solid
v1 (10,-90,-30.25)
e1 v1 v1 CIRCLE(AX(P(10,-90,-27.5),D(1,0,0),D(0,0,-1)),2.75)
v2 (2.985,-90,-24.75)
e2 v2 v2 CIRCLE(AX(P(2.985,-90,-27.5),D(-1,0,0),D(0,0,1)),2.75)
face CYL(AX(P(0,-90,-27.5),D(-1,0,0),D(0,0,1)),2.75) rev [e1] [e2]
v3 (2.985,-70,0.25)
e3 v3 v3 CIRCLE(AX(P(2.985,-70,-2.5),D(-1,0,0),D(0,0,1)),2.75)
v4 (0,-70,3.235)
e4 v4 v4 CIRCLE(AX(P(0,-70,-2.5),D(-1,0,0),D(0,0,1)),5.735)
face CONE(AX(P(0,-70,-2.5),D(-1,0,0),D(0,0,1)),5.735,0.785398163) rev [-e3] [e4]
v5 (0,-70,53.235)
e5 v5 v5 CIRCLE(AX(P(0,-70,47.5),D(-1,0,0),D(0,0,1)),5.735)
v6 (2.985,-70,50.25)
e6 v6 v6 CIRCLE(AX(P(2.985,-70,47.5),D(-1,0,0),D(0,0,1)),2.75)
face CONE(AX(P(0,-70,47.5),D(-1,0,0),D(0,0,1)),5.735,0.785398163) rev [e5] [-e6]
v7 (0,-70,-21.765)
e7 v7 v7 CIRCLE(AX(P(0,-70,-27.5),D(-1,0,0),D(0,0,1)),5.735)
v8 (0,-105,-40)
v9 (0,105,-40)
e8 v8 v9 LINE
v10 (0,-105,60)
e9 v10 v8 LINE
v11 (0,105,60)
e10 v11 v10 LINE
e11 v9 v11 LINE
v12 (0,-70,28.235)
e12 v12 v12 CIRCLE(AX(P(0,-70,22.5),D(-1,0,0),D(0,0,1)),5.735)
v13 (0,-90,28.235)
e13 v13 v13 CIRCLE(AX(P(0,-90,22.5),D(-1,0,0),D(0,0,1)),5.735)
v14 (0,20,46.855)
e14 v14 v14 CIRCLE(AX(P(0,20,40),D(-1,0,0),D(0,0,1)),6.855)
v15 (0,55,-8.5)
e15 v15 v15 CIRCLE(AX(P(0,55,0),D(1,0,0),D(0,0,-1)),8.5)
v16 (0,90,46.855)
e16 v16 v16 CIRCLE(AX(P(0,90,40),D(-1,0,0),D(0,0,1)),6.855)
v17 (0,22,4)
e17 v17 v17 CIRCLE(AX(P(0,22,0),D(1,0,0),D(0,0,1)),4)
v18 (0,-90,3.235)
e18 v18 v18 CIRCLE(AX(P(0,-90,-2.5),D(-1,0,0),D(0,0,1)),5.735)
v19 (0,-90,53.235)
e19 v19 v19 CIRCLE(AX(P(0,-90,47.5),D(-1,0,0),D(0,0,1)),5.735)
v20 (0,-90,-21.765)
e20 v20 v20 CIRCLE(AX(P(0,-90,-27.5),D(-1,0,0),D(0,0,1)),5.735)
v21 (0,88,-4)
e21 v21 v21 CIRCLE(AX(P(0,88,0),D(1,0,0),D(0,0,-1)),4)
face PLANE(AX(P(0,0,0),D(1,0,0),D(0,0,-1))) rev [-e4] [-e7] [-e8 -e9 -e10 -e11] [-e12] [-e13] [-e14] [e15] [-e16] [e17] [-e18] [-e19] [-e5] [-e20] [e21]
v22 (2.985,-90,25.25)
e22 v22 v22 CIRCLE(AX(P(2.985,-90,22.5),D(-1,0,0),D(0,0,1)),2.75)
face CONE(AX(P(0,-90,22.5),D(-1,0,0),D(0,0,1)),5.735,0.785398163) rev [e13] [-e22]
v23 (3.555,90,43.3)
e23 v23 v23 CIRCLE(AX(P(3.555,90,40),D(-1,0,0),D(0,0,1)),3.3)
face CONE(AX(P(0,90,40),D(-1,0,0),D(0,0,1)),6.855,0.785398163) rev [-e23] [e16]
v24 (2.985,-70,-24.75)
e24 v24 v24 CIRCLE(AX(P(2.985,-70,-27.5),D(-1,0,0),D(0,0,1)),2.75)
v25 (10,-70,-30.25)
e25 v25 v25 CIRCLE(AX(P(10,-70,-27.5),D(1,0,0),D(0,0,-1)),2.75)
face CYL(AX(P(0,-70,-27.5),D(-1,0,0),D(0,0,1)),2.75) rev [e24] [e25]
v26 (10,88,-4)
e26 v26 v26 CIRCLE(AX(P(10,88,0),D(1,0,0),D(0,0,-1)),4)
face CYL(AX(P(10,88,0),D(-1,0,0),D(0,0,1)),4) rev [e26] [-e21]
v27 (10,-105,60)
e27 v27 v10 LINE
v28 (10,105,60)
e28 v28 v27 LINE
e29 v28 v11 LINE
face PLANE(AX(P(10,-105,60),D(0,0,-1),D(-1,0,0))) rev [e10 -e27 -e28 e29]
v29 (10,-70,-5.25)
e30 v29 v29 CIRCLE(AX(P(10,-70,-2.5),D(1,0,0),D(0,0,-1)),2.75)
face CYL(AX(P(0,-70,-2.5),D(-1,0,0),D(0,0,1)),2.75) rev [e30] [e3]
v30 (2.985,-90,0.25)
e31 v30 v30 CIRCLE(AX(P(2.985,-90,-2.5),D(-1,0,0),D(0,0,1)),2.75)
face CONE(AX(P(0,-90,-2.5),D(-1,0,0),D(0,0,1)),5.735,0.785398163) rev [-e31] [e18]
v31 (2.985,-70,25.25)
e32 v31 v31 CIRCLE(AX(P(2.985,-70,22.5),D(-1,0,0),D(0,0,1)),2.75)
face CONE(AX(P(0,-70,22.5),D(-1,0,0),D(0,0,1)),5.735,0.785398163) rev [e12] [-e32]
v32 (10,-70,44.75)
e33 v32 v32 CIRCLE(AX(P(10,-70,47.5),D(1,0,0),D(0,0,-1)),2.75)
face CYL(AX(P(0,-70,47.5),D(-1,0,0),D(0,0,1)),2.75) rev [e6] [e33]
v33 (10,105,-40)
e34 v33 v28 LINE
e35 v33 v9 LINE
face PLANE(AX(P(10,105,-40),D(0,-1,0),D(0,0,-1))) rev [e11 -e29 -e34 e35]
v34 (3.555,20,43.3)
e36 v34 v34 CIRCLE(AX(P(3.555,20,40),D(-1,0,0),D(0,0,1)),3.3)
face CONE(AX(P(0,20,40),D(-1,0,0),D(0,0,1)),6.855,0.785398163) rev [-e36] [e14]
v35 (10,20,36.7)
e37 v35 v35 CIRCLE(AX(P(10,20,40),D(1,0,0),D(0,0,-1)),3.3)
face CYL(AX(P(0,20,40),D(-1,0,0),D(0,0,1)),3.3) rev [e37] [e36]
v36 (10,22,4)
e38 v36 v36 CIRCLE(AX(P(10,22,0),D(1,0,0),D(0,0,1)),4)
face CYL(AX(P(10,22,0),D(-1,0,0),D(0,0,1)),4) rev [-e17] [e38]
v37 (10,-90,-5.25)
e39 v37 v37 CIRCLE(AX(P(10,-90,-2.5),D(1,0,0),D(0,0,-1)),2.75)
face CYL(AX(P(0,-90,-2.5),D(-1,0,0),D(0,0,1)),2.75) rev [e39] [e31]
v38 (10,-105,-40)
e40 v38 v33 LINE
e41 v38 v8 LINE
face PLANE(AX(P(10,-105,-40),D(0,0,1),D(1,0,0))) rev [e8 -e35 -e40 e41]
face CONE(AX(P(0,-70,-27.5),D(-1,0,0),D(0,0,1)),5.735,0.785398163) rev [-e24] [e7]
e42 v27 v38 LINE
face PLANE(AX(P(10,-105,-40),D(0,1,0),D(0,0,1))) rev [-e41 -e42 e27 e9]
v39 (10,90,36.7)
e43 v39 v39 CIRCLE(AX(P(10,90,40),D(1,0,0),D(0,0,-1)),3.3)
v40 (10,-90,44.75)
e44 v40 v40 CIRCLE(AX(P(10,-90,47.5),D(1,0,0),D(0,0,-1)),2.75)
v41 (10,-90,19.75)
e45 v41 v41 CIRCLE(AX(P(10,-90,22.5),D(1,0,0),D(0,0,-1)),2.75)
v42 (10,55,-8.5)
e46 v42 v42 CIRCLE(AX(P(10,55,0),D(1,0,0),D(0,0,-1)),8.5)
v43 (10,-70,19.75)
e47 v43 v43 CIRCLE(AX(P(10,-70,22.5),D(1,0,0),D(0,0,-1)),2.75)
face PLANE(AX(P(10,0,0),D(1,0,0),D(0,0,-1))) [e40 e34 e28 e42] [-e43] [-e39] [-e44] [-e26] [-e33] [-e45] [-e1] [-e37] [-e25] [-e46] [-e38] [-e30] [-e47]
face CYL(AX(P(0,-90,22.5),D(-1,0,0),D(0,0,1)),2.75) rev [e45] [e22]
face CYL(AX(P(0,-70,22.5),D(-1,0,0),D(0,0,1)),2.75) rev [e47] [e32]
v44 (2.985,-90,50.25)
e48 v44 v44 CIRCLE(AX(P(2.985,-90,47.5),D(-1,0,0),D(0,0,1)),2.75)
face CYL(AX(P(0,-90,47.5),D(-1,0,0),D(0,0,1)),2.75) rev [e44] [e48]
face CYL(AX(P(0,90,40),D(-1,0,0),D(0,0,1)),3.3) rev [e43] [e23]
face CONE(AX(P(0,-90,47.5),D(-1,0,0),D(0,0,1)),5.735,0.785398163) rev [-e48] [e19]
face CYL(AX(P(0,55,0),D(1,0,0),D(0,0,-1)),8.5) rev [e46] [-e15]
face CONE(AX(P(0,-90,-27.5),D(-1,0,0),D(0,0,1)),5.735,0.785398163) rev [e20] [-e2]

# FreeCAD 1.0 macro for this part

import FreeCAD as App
import Part
import Sketcher

V = App.Vector
Q = App.Units.Quantity


def add_polygon(sketch, points):
    """Adds a closed chain of lines whose ends are joined by coincident constraints."""
    first, n = sketch.GeometryCount, len(points)
    for a, b in zip(points, points[1:] + points[:1]):
        sketch.addGeometry(Part.LineSegment(App.Vector(*a, 0), App.Vector(*b, 0)), False)
    for i in range(n):
        sketch.addConstraint(Sketcher.Constraint("Coincident", first + i, 2, first + (i + 1) % n, 1))

doc = App.newDocument("Part")
body = doc.addObject("PartDesign::Body", "Body")

sketch1 = body.newObject("Sketcher::SketchObject", "Sketch")
sketch1.AttachmentSupport = (doc.getObject("YZ_Plane"), [""])
sketch1.MapMode = "FlatFace"
add_polygon(sketch1, [(105, 60), (-105, 60), (-105, -40), (105, -40)])
sketch1.addGeometry(Part.Circle(V(22, 0, 0), V(0, 0, 1), 4), False)
sketch1.addGeometry(Part.Circle(V(88, 0, 0), V(0, 0, 1), 4), False)
sketch1.addConstraint(Sketcher.Constraint("Horizontal", 0))
sketch1.addConstraint(Sketcher.Constraint("Vertical", 1))
sketch1.addConstraint(Sketcher.Constraint("Horizontal", 2))
sketch1.addConstraint(Sketcher.Constraint("Vertical", 3))
sketch1.addConstraint(Sketcher.Constraint("Equal", 4, 5))
sketch1.addConstraint(Sketcher.Constraint("PointOnObject", 4, 3, -1))
sketch1.addConstraint(Sketcher.Constraint("PointOnObject", 5, 3, -1))
sketch1.addConstraint(Sketcher.Constraint("Diameter", 4, Q("8 mm")))
sketch1.addConstraint(Sketcher.Constraint("DistanceX", 0, 2, 0, 1, Q("210 mm")))
sketch1.addConstraint(Sketcher.Constraint("DistanceY", 1, 2, 1, 1, Q("100 mm")))
sketch1.addConstraint(Sketcher.Constraint("DistanceX", -1, 1, 4, 3, Q("22 mm")))
sketch1.addConstraint(Sketcher.Constraint("DistanceX", -1, 1, 5, 3, Q("88 mm")))
sketch1.addConstraint(Sketcher.Constraint("DistanceX", 0, 2, -1, 1, Q("105 mm")))
sketch1.addConstraint(Sketcher.Constraint("DistanceY", -1, 1, 0, 2, Q("60 mm")))
pad1 = body.newObject("PartDesign::Pad", "Pad")
pad1.Profile = sketch1
pad1.Length = 10

sketch2 = body.newObject("Sketcher::SketchObject", "Sketch001")
sketch2.AttachmentSupport = (doc.getObject("YZ_Plane"), [""])
sketch2.MapMode = "FlatFace"
sketch2.AttachmentOffset = App.Placement(V(0, 0, 10), App.Rotation())
sketch2.addGeometry(Part.Circle(V(-70, 22.5, 0), V(0, 0, 1), 2.5), False)
sketch2.addGeometry(Part.Circle(V(-70, 47.5, 0), V(0, 0, 1), 2.5), False)
sketch2.addGeometry(Part.Circle(V(-90, 47.5, 0), V(0, 0, 1), 2.5), False)
sketch2.addGeometry(Part.Circle(V(-90, 22.5, 0), V(0, 0, 1), 2.5), False)
sketch2.addGeometry(Part.Circle(V(-90, -2.5, 0), V(0, 0, 1), 2.5), False)
sketch2.addGeometry(Part.Circle(V(-90, -27.5, 0), V(0, 0, 1), 2.5), False)
sketch2.addGeometry(Part.Circle(V(-70, -27.5, 0), V(0, 0, 1), 2.5), False)
sketch2.addGeometry(Part.Circle(V(-70, -2.5, 0), V(0, 0, 1), 2.5), False)
sketch2.addConstraint(Sketcher.Constraint("Equal", 0, 1))
sketch2.addConstraint(Sketcher.Constraint("Equal", 1, 2))
sketch2.addConstraint(Sketcher.Constraint("Equal", 2, 3))
sketch2.addConstraint(Sketcher.Constraint("Equal", 3, 4))
sketch2.addConstraint(Sketcher.Constraint("Equal", 4, 5))
sketch2.addConstraint(Sketcher.Constraint("Equal", 5, 6))
sketch2.addConstraint(Sketcher.Constraint("Equal", 6, 7))
sketch2.addConstraint(Sketcher.Constraint("Horizontal", 1, 3, 2, 3))
sketch2.addConstraint(Sketcher.Constraint("Horizontal", 0, 3, 3, 3))
sketch2.addConstraint(Sketcher.Constraint("Horizontal", 5, 3, 6, 3))
sketch2.addConstraint(Sketcher.Constraint("Horizontal", 4, 3, 7, 3))
sketch2.addConstraint(Sketcher.Constraint("Vertical", 0, 3, 1, 3))
sketch2.addConstraint(Sketcher.Constraint("Vertical", 2, 3, 3, 3))
sketch2.addConstraint(Sketcher.Constraint("Vertical", 3, 3, 4, 3))
sketch2.addConstraint(Sketcher.Constraint("Vertical", 4, 3, 5, 3))
sketch2.addConstraint(Sketcher.Constraint("Vertical", 1, 3, 6, 3))
sketch2.addConstraint(Sketcher.Constraint("Vertical", 6, 3, 7, 3))
sketch2.addConstraint(Sketcher.Constraint("Diameter", 0, Q("5 mm")))
sketch2.addConstraint(Sketcher.Constraint("DistanceX", 0, 3, -1, 1, Q("70 mm")))
sketch2.addConstraint(Sketcher.Constraint("DistanceX", 2, 3, -1, 1, Q("90 mm")))
sketch2.addConstraint(Sketcher.Constraint("DistanceY", 0, 3, 1, 3, Q("25 mm")))
sketch2.addConstraint(Sketcher.Constraint("DistanceY", 4, 3, 3, 3, Q("25 mm")))
sketch2.addConstraint(Sketcher.Constraint("DistanceY", 5, 3, 4, 3, Q("25 mm")))
sketch2.addConstraint(Sketcher.Constraint("DistanceY", -1, 1, 0, 3, Q("22.5 mm")))
pocket1 = body.newObject("PartDesign::Pocket", "Pocket")
pocket1.Profile = sketch2
pocket1.Type = "ThroughAll"

sketch3 = body.newObject("Sketcher::SketchObject", "Sketch002")
sketch3.AttachmentSupport = (doc.getObject("YZ_Plane"), [""])
sketch3.MapMode = "FlatFace"
sketch3.AttachmentOffset = App.Placement(V(0, 0, 10), App.Rotation())
sketch3.addGeometry(Part.Circle(V(90, 40, 0), V(0, 0, 1), 2.5), False)
sketch3.addGeometry(Part.Circle(V(20, 40, 0), V(0, 0, 1), 2.5), False)
sketch3.addConstraint(Sketcher.Constraint("Equal", 0, 1))
sketch3.addConstraint(Sketcher.Constraint("Horizontal", 0, 3, 1, 3))
sketch3.addConstraint(Sketcher.Constraint("Diameter", 0, Q("5 mm")))
sketch3.addConstraint(Sketcher.Constraint("DistanceX", -1, 1, 0, 3, Q("90 mm")))
sketch3.addConstraint(Sketcher.Constraint("DistanceY", -1, 1, 0, 3, Q("40 mm")))
sketch3.addConstraint(Sketcher.Constraint("DistanceX", -1, 1, 1, 3, Q("20 mm")))
pocket2 = body.newObject("PartDesign::Pocket", "Pocket001")
pocket2.Profile = sketch3
pocket2.Type = "ThroughAll"

sketch4 = body.newObject("Sketcher::SketchObject", "Sketch003")
sketch4.AttachmentSupport = (doc.getObject("YZ_Plane"), [""])
sketch4.MapMode = "FlatFace"
sketch4.AttachmentOffset = App.Placement(V(0, 0, 10), App.Rotation())
sketch4.addGeometry(Part.Circle(V(55, 0, 0), V(0, 0, 1), 8), False)
sketch4.addConstraint(Sketcher.Constraint("PointOnObject", 0, 3, -1))
sketch4.addConstraint(Sketcher.Constraint("Diameter", 0, Q("17 mm")))
sketch4.addConstraint(Sketcher.Constraint("DistanceX", -1, 1, 0, 3, Q("55 mm")))
pocket3 = body.newObject("PartDesign::Pocket", "Pocket002")
pocket3.Profile = sketch4
pocket3.Type = "ThroughAll"

sketch5 = body.newObject("Sketcher::SketchObject", "Sketch004")
sketch5.AttachmentSupport = (doc.getObject("YZ_Plane"), [""])
sketch5.MapMode = "FlatFace"
sketch5.addGeometry(Part.Circle(V(90, 40, 0), V(0, 0, 1), 3.3), False)
sketch5.addGeometry(Part.Circle(V(20, 40, 0), V(0, 0, 1), 3.3), False)
sketch5.addConstraint(Sketcher.Constraint("Equal", 0, 1))
sketch5.addConstraint(Sketcher.Constraint("Horizontal", 0, 3, 1, 3))
sketch5.addConstraint(Sketcher.Constraint("Diameter", 0, Q("6.6 mm")))
sketch5.addConstraint(Sketcher.Constraint("DistanceX", -1, 1, 0, 3, Q("90 mm")))
sketch5.addConstraint(Sketcher.Constraint("DistanceY", -1, 1, 0, 3, Q("40 mm")))
sketch5.addConstraint(Sketcher.Constraint("DistanceX", -1, 1, 1, 3, Q("20 mm")))
doc.recompute()
hole = body.newObject("PartDesign::Hole", "Hole")
hole.Profile = sketch5
hole.ThreadType = "None"
hole.Diameter = 6.6
hole.DepthType = "Dimension"
hole.Depth = 15
hole.DrillPoint = "Angled"
hole.DrillPointAngle = 118
hole.HoleCutType = "Countersink"
hole.HoleCutDiameter = 13.71
hole.HoleCutCountersinkAngle = 90
hole.Reversed = True

sketch6 = body.newObject("Sketcher::SketchObject", "Sketch005")
sketch6.AttachmentSupport = (doc.getObject("YZ_Plane"), [""])
sketch6.MapMode = "FlatFace"
sketch6.addGeometry(Part.Circle(V(-70, -27.5, 0), V(0, 0, 1), 2.8), False)
sketch6.addGeometry(Part.Circle(V(-70, -2.5, 0), V(0, 0, 1), 2.8), False)
sketch6.addGeometry(Part.Circle(V(-70, 22.5, 0), V(0, 0, 1), 2.8), False)
sketch6.addGeometry(Part.Circle(V(-70, 47.5, 0), V(0, 0, 1), 2.8), False)
sketch6.addGeometry(Part.Circle(V(-90, 47.5, 0), V(0, 0, 1), 2.8), False)
sketch6.addGeometry(Part.Circle(V(-90, 22.5, 0), V(0, 0, 1), 2.8), False)
sketch6.addGeometry(Part.Circle(V(-90, -2.5, 0), V(0, 0, 1), 2.8), False)
sketch6.addGeometry(Part.Circle(V(-90, -27.5, 0), V(0, 0, 1), 2.8), False)
sketch6.addConstraint(Sketcher.Constraint("Equal", 0, 1))
sketch6.addConstraint(Sketcher.Constraint("Equal", 1, 2))
sketch6.addConstraint(Sketcher.Constraint("Equal", 2, 3))
sketch6.addConstraint(Sketcher.Constraint("Equal", 3, 4))
sketch6.addConstraint(Sketcher.Constraint("Equal", 4, 5))
sketch6.addConstraint(Sketcher.Constraint("Equal", 5, 6))
sketch6.addConstraint(Sketcher.Constraint("Equal", 6, 7))
sketch6.addConstraint(Sketcher.Constraint("Horizontal", 3, 3, 4, 3))
sketch6.addConstraint(Sketcher.Constraint("Horizontal", 2, 3, 5, 3))
sketch6.addConstraint(Sketcher.Constraint("Horizontal", 1, 3, 6, 3))
sketch6.addConstraint(Sketcher.Constraint("Horizontal", 0, 3, 7, 3))
sketch6.addConstraint(Sketcher.Constraint("Vertical", 0, 3, 1, 3))
sketch6.addConstraint(Sketcher.Constraint("Vertical", 1, 3, 2, 3))
sketch6.addConstraint(Sketcher.Constraint("Vertical", 2, 3, 3, 3))
sketch6.addConstraint(Sketcher.Constraint("Vertical", 4, 3, 5, 3))
sketch6.addConstraint(Sketcher.Constraint("Vertical", 5, 3, 6, 3))
sketch6.addConstraint(Sketcher.Constraint("Vertical", 6, 3, 7, 3))
sketch6.addConstraint(Sketcher.Constraint("Diameter", 0, Q("5.5 mm")))
sketch6.addConstraint(Sketcher.Constraint("DistanceX", 0, 3, -1, 1, Q("70 mm")))
sketch6.addConstraint(Sketcher.Constraint("DistanceX", 4, 3, -1, 1, Q("90 mm")))
sketch6.addConstraint(Sketcher.Constraint("DistanceY", 0, 3, 1, 3, Q("25 mm")))
sketch6.addConstraint(Sketcher.Constraint("DistanceY", 1, 3, 2, 3, Q("25 mm")))
sketch6.addConstraint(Sketcher.Constraint("DistanceY", 2, 3, 3, 3, Q("25 mm")))
sketch6.addConstraint(Sketcher.Constraint("DistanceY", 0, 3, -1, 1, Q("27.5 mm")))
doc.recompute()
hole2 = body.newObject("PartDesign::Hole", "Hole001")
hole2.Profile = sketch6
hole2.ThreadType = "None"
hole2.Diameter = 5.5
hole2.DepthType = "Dimension"
hole2.Depth = 15
hole2.DrillPoint = "Angled"
hole2.DrillPointAngle = 118
hole2.HoleCutType = "Countersink"
hole2.HoleCutDiameter = 11.47
hole2.HoleCutCountersinkAngle = 90
hole2.Reversed = True

doc.recompute()
